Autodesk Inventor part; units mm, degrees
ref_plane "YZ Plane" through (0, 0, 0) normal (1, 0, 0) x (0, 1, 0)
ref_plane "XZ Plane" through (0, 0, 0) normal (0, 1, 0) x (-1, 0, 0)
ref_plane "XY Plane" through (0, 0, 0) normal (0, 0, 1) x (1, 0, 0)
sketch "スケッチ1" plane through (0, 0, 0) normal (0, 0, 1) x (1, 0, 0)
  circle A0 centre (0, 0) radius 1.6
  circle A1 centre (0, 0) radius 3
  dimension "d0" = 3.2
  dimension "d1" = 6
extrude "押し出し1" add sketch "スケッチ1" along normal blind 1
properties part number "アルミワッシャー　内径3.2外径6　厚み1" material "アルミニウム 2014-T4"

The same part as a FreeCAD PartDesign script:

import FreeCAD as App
import Part
import Sketcher

V = App.Vector
Q = App.Units.Quantity

doc = App.newDocument("Part")
body = doc.addObject("PartDesign::Body", "Body")

# Sketch on XY plane
sketch1 = doc.addObject("Sketcher::SketchObject", "Sketch")
body.addObject(sketch1)
sketch1.AttachmentSupport = (doc.XY_Plane, [""])
sketch1.MapMode = "FlatFace"
sketch1.addGeometry([
    Part.Circle(V(0, 0, 0), V(0, 0, 1), 3),
    Part.Circle(V(0, 0, 0), V(0, 0, 1), 1.6),
], False)
sketch1.addConstraint([
    Sketcher.Constraint("Coincident", 0, 3, -1, 1),
    Sketcher.Constraint("Coincident", 1, 3, -1, 1),
    Sketcher.Constraint("Diameter", 0, Q("6 mm")),
    Sketcher.Constraint("Diameter", 1, Q("3.2 mm")),
])
pad1 = doc.addObject("PartDesign::Pad", "Pad")
body.addObject(pad1)
pad1.Profile = sketch1
pad1.Length = 1

doc.recompute()
